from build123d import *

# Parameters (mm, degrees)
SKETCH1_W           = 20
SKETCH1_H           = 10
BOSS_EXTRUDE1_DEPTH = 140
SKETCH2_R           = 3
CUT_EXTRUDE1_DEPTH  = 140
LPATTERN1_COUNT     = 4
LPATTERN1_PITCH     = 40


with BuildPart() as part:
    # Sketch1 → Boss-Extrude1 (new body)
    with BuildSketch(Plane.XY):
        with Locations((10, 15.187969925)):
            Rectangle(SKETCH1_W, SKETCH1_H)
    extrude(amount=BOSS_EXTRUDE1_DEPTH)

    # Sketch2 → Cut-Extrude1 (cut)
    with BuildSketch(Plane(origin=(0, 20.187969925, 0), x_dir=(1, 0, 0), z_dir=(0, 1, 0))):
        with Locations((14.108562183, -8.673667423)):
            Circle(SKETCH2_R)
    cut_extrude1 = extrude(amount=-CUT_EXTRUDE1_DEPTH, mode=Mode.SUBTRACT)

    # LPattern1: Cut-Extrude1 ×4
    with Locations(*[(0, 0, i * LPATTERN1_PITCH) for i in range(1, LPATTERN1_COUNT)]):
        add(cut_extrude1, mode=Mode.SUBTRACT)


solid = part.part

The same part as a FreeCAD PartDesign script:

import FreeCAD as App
import Part
import Sketcher

V = App.Vector
Q = App.Units.Quantity


def add_polygon(sketch, points):
    """Adds a closed chain of lines whose ends are joined by coincident constraints."""
    first, n = sketch.GeometryCount, len(points)
    for a, b in zip(points, points[1:] + points[:1]):
        sketch.addGeometry(Part.LineSegment(App.Vector(*a, 0), App.Vector(*b, 0)), False)
    for i in range(n):
        sketch.addConstraint(Sketcher.Constraint("Coincident", first + i, 2, first + (i + 1) % n, 1))

doc = App.newDocument("Part")
body = doc.addObject("PartDesign::Body", "Body")

# Sketch on XY plane
sketch1 = body.newObject("Sketcher::SketchObject", "Sketch")
sketch1.AttachmentSupport = (doc.getObject("XY_Plane"), [""])
sketch1.MapMode = "FlatFace"
add_polygon(sketch1, [(0, 20), (0, 10), (20, 10), (20, 20)])  # lines 0-3
sketch1.addConstraint([
    Sketcher.Constraint("Vertical", 0),
    Sketcher.Constraint("Horizontal", 1),
    Sketcher.Constraint("Vertical", 2),
    Sketcher.Constraint("Horizontal", 3),
    Sketcher.Constraint("PointOnObject", 0, 2, -2),
    Sketcher.Constraint("DistanceX", 1, 1, 1, 2, Q("20 mm")),
    Sketcher.Constraint("DistanceY", 0, 2, 0, 1, Q("10 mm")),
    Sketcher.Constraint("DistanceY", -1, 1, 0, 2, Q("10.18797 mm")),
])
pad1 = body.newObject("PartDesign::Pad", "Pad")
pad1.Profile = sketch1
pad1.Length = 140

# Sketch on XZ plane
sketch2 = body.newObject("Sketcher::SketchObject", "Sketch001")
sketch2.AttachmentSupport = (doc.getObject("XZ_Plane"), [""])
sketch2.MapMode = "FlatFace"
sketch2.AttachmentOffset = App.Placement(V(0, 0, -20.18797), App.Rotation())
sketch2.addGeometry(Part.Circle(V(14.1, 8.7, 0), V(0, 0, 1), 3), False)
sketch2.addConstraint([
    Sketcher.Constraint("Diameter", 0, Q("6 mm")),
    Sketcher.Constraint("DistanceX", -1, 1, 0, 3, Q("14.108562 mm")),
    Sketcher.Constraint("DistanceY", -1, 1, 0, 3, Q("8.673667 mm")),
])
pocket1 = body.newObject("PartDesign::Pocket", "Pocket")
pocket1.Profile = sketch2
pocket1.Length = 140
pocket1.Reversed = True
doc.recompute()

linearpattern = body.newObject("PartDesign::LinearPattern", "LinearPattern")
linearpattern.Originals = [pocket1]
linearpattern.Direction = (doc.getObject("Z_Axis"), [""])
linearpattern.Mode = "offset"
linearpattern.Offset = 40
linearpattern.Occurrences = 4
body.Tip = linearpattern

doc.recompute()
